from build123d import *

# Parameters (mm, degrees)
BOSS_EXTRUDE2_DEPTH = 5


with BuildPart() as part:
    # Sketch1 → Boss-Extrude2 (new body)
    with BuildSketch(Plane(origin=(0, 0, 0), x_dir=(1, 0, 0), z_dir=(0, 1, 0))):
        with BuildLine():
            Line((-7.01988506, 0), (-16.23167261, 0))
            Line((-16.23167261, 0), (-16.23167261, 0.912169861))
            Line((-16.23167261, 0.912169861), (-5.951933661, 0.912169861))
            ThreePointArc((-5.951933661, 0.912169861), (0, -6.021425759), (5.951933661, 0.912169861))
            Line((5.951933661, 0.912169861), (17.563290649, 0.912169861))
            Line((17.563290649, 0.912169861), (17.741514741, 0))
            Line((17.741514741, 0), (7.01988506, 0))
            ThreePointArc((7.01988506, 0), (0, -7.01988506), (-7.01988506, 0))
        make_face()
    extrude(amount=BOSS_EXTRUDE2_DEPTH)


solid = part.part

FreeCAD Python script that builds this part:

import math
import FreeCAD as App
import Part
import Sketcher

doc = App.newDocument("Part")
body = doc.addObject("PartDesign::Body", "Body")

# Sketch on XZ plane
sketch1 = doc.addObject("Sketcher::SketchObject", "Sketch")
body.addObject(sketch1)
sketch1.AttachmentSupport = (doc.XZ_Plane, [""])
sketch1.MapMode = "FlatFace"
sketch1.addGeometry([
    Part.LineSegment(App.Vector(-16.231673, 0, 0), App.Vector(-7.019885, 0, 0)),  # 0
    Part.ArcOfCircle(Part.Circle(App.Vector(0, 0, 0), App.Vector(0, 0, 1), 7.019885), math.radians(0), math.radians(180)),  # 1
    Part.LineSegment(App.Vector(7.019885, 0, 0), App.Vector(17.741515, 0, 0)),  # 2
    Part.LineSegment(App.Vector(17.741515, 0, 0), App.Vector(17.563291, -0.91217, 0)),  # 3
    Part.LineSegment(App.Vector(17.563291, -0.91217, 0), App.Vector(5.951934, -0.91217, 0)),  # 4
    Part.ArcOfCircle(Part.Circle(App.Vector(0, 0, 0), App.Vector(0, 0, 1), 6.021426), math.radians(-8.713131), math.radians(188.713131)),  # 5
    Part.LineSegment(App.Vector(-5.951934, -0.91217, 0), App.Vector(-16.231673, -0.91217, 0)),  # 6
    Part.LineSegment(App.Vector(-16.231673, -0.91217, 0), App.Vector(-16.231673, 0, 0)),  # 7
], False)
sketch1.addConstraint([
    Sketcher.Constraint("Coincident", 0, 2, 1, 2),
    Sketcher.Constraint("Coincident", 1, 1, 2, 1),
    Sketcher.Constraint("Coincident", 2, 2, 3, 1),
    Sketcher.Constraint("Coincident", 3, 2, 4, 1),
    Sketcher.Constraint("Coincident", 4, 2, 5, 1),
    Sketcher.Constraint("Coincident", 5, 2, 6, 1),
    Sketcher.Constraint("Coincident", 6, 2, 7, 1),
    Sketcher.Constraint("Coincident", 7, 2, 0, 1),
    Sketcher.Constraint("Horizontal", 0),
    Sketcher.Constraint("Horizontal", 2),
    Sketcher.Constraint("Horizontal", 4),
    Sketcher.Constraint("Horizontal", 6),
    Sketcher.Constraint("Vertical", 7),
    Sketcher.Constraint("Coincident", 1, 3, -1, 1),
    Sketcher.Constraint("Coincident", 5, 3, -1, 1),
    Sketcher.Constraint("PointOnObject", 0, 2, -1),
    Sketcher.Constraint("PointOnObject", 1, 1, -1),
    Sketcher.Constraint("Horizontal", 4, 2, 5, 2),
    Sketcher.Constraint("Radius", 1, 7.019885),
    Sketcher.Constraint("Radius", 5, 6.021426),
    Sketcher.Constraint("DistanceX", 2, 1, 2, 2, 10.72163),
    Sketcher.Constraint("DistanceX", 6, 2, 6, 1, 10.279739),
    Sketcher.Constraint("DistanceY", 7, 1, 7, 2, 0.91217),
    Sketcher.Constraint("DistanceX", 4, 2, 4, 1, 11.611357),
])
pad1 = doc.addObject("PartDesign::Pad", "Pad")
body.addObject(pad1)
pad1.Profile = sketch1
pad1.Length = 5
pad1.Reversed = True

doc.recompute()
